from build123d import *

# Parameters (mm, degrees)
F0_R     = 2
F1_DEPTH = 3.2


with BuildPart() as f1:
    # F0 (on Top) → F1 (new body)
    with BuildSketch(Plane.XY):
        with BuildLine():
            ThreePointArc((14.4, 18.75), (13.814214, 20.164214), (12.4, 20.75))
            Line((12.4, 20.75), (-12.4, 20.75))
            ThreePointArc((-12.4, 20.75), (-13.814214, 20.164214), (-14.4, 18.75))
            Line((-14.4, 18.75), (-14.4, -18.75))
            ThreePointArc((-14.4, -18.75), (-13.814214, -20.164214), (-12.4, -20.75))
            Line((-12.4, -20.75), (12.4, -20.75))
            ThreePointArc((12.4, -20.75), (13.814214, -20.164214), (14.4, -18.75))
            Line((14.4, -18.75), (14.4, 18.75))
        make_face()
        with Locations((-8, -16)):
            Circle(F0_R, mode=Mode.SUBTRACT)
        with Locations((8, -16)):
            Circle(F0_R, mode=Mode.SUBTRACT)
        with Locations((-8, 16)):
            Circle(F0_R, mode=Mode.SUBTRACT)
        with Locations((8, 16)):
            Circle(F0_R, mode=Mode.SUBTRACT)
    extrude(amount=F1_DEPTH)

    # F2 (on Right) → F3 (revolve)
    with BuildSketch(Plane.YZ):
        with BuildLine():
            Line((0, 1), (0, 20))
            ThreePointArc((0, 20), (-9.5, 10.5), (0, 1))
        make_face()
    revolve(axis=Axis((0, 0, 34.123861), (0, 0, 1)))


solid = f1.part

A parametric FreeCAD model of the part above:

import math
import FreeCAD as App
import Part
import Sketcher

V = App.Vector

doc = App.newDocument("Part")
params = doc.addObject("Spreadsheet::Sheet", "Params")
for row, (alias, value) in enumerate([
    ("sketch1_diameter", "4 mm"),
    ("sketch1_width", "24.8 mm"),
    ("sketch1_height", "37.5 mm"),
    ("pad1_length", "3.2 mm"),
    ("sketch2_radius", "9.5 mm"),
    ("revolution_angle", "360 deg"),
], start=1):
    params.set(f"A{row}", alias)
    params.set(f"B{row}", "=" + value)
    params.setAlias(f"B{row}", alias)

body = doc.addObject("PartDesign::Body", "Body")

sketch1 = body.newObject("Sketcher::SketchObject", "Sketch")
sketch1.AttachmentSupport = (doc.getObject("XY_Plane"), [""])
sketch1.MapMode = "FlatFace"
sketch1.addGeometry([
    Part.ArcOfCircle(Part.Circle(V(12.400001, 18.750001, 0), V(0, 0, 1), 1.999999), math.radians(-0.000043), math.radians(90.000043)),
    Part.LineSegment(V(12.4, 20.75, 0), V(-12.4, 20.75, 0)),
    Part.ArcOfCircle(Part.Circle(V(-12.400001, 18.750001, 0), V(0, 0, 1), 1.999999), math.radians(89.999957), math.radians(180.000043)),
    Part.LineSegment(V(-14.4, 18.75, 0), V(-14.4, -18.75, 0)),
    Part.ArcOfCircle(Part.Circle(V(-12.400001, -18.750001, 0), V(0, 0, 1), 1.999999), math.radians(179.999957), math.radians(270.000043)),
    Part.LineSegment(V(-12.4, -20.75, 0), V(12.4, -20.75, 0)),
    Part.ArcOfCircle(Part.Circle(V(12.400001, -18.750001, 0), V(0, 0, 1), 1.999999), math.radians(-90.000043), math.radians(0.000043)),
    Part.LineSegment(V(14.4, -18.75, 0), V(14.4, 18.75, 0)),
    Part.Circle(V(-8, -16, 0), V(0, 0, 1), 2),
    Part.Circle(V(8, -16, 0), V(0, 0, 1), 2),
    Part.Circle(V(-8, 16, 0), V(0, 0, 1), 2),
    Part.Circle(V(8, 16, 0), V(0, 0, 1), 2),
], False)
sketch1.addConstraint([
    Sketcher.Constraint("Tangent", 0, 2, 1, 1),
    Sketcher.Constraint("Tangent", 1, 2, 2, 1),
    Sketcher.Constraint("Tangent", 2, 2, 3, 1),
    Sketcher.Constraint("Tangent", 3, 2, 4, 1),
    Sketcher.Constraint("Tangent", 4, 2, 5, 1),
    Sketcher.Constraint("Tangent", 5, 2, 6, 1),
    Sketcher.Constraint("Tangent", 6, 2, 7, 1),
    Sketcher.Constraint("Tangent", 7, 2, 0, 1),
    Sketcher.Constraint("Horizontal", 1),
    Sketcher.Constraint("Vertical", 3),
    Sketcher.Constraint("Horizontal", 5),
    Sketcher.Constraint("Vertical", 7),
    Sketcher.Constraint("Equal", 0, 2),
    Sketcher.Constraint("Equal", 2, 4),
    Sketcher.Constraint("Equal", 4, 6),
    Sketcher.Constraint("Equal", 6, 8),
    Sketcher.Constraint("Equal", 8, 9),
    Sketcher.Constraint("Equal", 9, 10),
    Sketcher.Constraint("Equal", 10, 11),
    Sketcher.Constraint("Symmetric", 0, 3, 4, 3, -1, 1),
    Sketcher.Constraint("Symmetric", 9, 3, 10, 3, -1, 1),
    Sketcher.Constraint("Symmetric", 8, 3, 11, 3, -1, 1),
    Sketcher.Constraint("Symmetric", 8, 3, 9, 3, -2),
    Sketcher.Constraint("Diameter", 8, 4.0),
    Sketcher.Constraint("DistanceX", 1, 2, 1, 1, 24.8),
    Sketcher.Constraint("DistanceY", 3, 2, 3, 1, 37.5),
    Sketcher.Constraint("DistanceX", 8, 3, -1, 1, 8.0),
    Sketcher.Constraint("DistanceY", 8, 3, -1, 1, 16.0),
])
sketch1.setExpression("Constraints[23]", "Params.sketch1_diameter")
sketch1.setExpression("Constraints[24]", "Params.sketch1_width")
sketch1.setExpression("Constraints[25]", "Params.sketch1_height")
pad1 = body.newObject("PartDesign::Pad", "Pad")
pad1.Profile = sketch1
pad1.setExpression("Length", "Params.pad1_length")

sketch2 = body.newObject("Sketcher::SketchObject", "Sketch001")
sketch2.AttachmentSupport = (doc.getObject("YZ_Plane"), [""])
sketch2.MapMode = "FlatFace"
sketch2.addGeometry([
    Part.LineSegment(V(0, 1, 0), V(0, 20, 0)),
    Part.ArcOfCircle(Part.Circle(V(0, 10.5, 0), V(0, 0, 1), 9.5), math.radians(90), math.radians(270)),
], False)
sketch2.addConstraint([
    Sketcher.Constraint("Coincident", 0, 1, 1, 2),
    Sketcher.Constraint("Coincident", 1, 1, 0, 2),
    Sketcher.Constraint("Vertical", 0),
    Sketcher.Constraint("PointOnObject", 1, 3, -2),
    Sketcher.Constraint("PointOnObject", 0, 1, -2),
    Sketcher.Constraint("Radius", 1, 9.5),
    Sketcher.Constraint("DistanceY", -1, 1, 0, 1, 1.0),
])
sketch2.setExpression("Constraints[5]", "Params.sketch2_radius")
revolution = body.newObject("PartDesign::Revolution", "Revolution")
revolution.Profile = sketch2
revolution.ReferenceAxis = (sketch2, ["V_Axis"])
revolution.setExpression("Angle", "Params.revolution_angle")

doc.recompute()
